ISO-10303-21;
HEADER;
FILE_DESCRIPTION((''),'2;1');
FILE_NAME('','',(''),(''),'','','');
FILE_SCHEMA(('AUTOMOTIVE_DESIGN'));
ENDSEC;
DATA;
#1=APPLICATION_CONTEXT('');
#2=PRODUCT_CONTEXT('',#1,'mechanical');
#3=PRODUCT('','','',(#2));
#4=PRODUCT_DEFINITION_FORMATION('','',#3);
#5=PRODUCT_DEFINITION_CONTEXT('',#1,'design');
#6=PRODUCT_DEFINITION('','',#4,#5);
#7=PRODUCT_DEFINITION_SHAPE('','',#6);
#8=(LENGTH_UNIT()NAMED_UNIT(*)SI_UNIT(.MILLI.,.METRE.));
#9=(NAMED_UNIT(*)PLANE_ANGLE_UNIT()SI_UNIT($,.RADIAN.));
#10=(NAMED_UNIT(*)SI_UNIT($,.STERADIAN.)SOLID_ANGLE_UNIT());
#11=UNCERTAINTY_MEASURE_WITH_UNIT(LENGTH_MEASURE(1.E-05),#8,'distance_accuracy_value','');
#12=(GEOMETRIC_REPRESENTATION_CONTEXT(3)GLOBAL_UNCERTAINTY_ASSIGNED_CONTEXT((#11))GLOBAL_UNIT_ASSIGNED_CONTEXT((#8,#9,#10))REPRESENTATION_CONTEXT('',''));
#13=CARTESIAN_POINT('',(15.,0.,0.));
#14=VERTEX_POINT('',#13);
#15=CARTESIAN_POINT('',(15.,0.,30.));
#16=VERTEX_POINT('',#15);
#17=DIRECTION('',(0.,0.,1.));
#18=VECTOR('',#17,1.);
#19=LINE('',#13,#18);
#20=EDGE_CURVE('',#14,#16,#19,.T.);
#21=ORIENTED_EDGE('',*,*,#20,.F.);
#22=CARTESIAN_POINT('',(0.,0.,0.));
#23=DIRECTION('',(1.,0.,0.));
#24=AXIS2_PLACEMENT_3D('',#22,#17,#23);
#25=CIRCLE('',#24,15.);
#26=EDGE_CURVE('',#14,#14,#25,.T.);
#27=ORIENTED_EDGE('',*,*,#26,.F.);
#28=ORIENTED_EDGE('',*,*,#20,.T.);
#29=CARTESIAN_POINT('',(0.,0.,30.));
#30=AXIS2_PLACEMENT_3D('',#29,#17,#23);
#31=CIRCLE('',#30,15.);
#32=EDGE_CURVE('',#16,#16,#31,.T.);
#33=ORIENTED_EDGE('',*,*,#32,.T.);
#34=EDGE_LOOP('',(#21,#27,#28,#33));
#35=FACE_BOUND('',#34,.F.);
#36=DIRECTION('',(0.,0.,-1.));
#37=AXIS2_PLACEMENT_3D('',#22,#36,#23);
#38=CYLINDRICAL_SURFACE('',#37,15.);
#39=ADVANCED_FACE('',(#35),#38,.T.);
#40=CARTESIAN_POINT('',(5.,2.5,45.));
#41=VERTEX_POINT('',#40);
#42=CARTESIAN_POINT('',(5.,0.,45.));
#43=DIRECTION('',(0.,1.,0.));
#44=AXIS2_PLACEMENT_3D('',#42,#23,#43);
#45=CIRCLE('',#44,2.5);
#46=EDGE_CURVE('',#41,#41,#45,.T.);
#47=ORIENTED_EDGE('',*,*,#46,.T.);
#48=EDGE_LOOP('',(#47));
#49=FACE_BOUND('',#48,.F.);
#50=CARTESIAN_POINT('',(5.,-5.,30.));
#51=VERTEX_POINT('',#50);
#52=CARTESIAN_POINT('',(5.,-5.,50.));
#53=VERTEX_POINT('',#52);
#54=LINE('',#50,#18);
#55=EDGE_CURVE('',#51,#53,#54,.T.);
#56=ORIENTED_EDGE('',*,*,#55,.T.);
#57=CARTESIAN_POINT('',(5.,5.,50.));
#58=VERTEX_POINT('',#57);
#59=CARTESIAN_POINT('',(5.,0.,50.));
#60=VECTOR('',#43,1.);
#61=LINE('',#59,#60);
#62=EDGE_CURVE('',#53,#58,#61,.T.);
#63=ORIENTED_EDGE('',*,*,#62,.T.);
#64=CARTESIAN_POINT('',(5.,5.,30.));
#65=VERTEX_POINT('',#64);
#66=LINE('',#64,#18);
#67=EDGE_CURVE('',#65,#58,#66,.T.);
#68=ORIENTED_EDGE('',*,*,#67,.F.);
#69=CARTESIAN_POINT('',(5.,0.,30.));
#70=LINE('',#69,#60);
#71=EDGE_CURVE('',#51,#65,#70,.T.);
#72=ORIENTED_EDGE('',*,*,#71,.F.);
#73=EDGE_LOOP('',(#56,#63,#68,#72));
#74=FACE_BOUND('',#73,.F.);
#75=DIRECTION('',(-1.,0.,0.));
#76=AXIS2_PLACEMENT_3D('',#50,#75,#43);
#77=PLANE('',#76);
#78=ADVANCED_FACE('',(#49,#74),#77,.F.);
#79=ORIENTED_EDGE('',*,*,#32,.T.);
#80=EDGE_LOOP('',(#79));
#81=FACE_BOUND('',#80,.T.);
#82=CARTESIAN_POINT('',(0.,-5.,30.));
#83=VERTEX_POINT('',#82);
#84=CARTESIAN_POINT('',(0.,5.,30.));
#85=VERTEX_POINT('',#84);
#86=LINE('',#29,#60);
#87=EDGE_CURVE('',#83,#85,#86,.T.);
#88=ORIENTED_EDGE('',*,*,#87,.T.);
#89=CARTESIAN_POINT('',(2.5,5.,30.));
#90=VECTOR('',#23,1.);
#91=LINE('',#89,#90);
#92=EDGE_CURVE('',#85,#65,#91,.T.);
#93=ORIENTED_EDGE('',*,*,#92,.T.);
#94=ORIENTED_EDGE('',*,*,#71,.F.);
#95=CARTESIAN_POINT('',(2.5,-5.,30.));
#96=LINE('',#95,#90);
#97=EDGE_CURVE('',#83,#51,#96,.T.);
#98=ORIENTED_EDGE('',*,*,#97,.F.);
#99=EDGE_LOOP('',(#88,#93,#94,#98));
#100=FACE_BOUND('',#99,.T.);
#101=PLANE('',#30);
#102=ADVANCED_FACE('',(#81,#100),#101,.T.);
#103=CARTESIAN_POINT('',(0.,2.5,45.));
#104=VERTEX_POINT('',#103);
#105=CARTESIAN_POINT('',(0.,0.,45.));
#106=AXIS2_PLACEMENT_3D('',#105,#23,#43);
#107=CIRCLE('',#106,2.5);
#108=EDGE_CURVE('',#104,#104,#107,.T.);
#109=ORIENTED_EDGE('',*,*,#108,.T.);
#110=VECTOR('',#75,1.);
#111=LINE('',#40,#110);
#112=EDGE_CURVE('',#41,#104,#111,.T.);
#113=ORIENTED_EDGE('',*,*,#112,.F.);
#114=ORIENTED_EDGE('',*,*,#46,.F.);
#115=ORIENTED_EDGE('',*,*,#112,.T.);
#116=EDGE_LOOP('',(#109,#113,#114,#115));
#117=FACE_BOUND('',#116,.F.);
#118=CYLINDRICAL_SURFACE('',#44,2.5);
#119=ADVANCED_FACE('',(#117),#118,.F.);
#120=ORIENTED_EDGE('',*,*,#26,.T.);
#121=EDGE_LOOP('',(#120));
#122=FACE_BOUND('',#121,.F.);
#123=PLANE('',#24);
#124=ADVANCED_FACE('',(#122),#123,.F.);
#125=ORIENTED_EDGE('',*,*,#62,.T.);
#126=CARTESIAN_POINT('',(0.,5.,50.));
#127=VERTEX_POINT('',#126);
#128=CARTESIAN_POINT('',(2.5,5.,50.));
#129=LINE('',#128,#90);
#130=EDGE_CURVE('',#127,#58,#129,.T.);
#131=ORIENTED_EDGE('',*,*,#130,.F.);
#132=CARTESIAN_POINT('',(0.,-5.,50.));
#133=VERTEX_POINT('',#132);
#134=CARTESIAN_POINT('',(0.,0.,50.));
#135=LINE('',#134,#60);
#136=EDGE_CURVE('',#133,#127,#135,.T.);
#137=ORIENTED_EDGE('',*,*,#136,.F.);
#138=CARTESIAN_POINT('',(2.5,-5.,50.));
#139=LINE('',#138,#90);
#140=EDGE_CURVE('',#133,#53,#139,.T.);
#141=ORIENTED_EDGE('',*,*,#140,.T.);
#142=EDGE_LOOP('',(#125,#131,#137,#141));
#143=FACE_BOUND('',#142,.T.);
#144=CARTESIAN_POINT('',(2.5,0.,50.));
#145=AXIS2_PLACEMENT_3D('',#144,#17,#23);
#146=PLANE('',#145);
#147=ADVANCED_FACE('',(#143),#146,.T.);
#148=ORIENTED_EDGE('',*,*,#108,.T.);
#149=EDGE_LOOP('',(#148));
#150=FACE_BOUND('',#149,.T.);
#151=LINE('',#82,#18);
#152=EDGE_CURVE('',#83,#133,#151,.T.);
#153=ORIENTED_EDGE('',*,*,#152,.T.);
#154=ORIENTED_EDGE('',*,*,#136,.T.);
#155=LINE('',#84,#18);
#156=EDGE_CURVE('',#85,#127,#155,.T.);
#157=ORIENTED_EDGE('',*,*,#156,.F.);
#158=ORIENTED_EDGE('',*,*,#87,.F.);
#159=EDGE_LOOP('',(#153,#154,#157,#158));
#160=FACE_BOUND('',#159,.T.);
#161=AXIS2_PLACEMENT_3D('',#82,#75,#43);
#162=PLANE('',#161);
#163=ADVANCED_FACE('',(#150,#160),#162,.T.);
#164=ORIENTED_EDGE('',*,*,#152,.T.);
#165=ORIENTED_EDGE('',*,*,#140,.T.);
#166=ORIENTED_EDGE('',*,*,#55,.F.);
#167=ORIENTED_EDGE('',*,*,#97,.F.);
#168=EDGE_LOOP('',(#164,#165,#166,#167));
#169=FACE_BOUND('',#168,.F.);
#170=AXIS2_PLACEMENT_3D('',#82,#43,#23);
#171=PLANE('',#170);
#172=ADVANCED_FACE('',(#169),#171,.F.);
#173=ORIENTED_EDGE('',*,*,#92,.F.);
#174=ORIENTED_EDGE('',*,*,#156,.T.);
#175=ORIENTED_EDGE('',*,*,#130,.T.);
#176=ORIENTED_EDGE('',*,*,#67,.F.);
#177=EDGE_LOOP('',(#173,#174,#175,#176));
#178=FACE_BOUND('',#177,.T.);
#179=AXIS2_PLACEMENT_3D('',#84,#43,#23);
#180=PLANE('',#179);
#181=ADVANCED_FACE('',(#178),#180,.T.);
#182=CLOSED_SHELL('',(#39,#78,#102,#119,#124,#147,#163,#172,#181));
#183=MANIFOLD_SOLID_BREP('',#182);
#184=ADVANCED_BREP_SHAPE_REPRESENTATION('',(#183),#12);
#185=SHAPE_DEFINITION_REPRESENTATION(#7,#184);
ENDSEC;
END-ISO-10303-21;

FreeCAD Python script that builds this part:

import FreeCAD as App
import Part
import Sketcher

V = App.Vector


def add_polygon(sketch, points):
    """Adds a closed chain of lines whose ends are joined by coincident constraints."""
    first, n = sketch.GeometryCount, len(points)
    for a, b in zip(points, points[1:] + points[:1]):
        sketch.addGeometry(Part.LineSegment(App.Vector(*a, 0), App.Vector(*b, 0)), False)
    for i in range(n):
        sketch.addConstraint(Sketcher.Constraint("Coincident", first + i, 2, first + (i + 1) % n, 1))

doc = App.newDocument("Part")
body = doc.addObject("PartDesign::Body", "Body")

sketch1 = doc.addObject("Sketcher::SketchObject", "Sketch")
body.addObject(sketch1)
sketch1.AttachmentSupport = (doc.XY_Plane, [""])
sketch1.MapMode = "FlatFace"
sketch1.addGeometry(Part.Circle(V(0, 0, 0), V(0, 0, 1), 15), False)
sketch1.addConstraint([
    Sketcher.Constraint("Coincident", 0, 3, -1, 1),
    Sketcher.Constraint("Diameter", 0, 30.0),
])
pad1 = doc.addObject("PartDesign::Pad", "Pad")
body.addObject(pad1)
pad1.Profile = sketch1
pad1.Length = 30

sketch2 = doc.addObject("Sketcher::SketchObject", "Sketch001")
body.addObject(sketch2)
sketch2.AttachmentSupport = (doc.XY_Plane, [""])
sketch2.MapMode = "FlatFace"
sketch2.AttachmentOffset = App.Placement(V(0, 0, 30), App.Rotation())
add_polygon(sketch2, [(0, 5), (0, -5), (5, -5), (5, 5)])
sketch2.addConstraint([
    Sketcher.Constraint("Vertical", 0),
    Sketcher.Constraint("Horizontal", 1),
    Sketcher.Constraint("Vertical", 2),
    Sketcher.Constraint("Horizontal", 3),
    Sketcher.Constraint("Symmetric", 0, 2, 3, 2, -1, 1),
    Sketcher.Constraint("DistanceX", 1, 1, 1, 2, 5.0),
    Sketcher.Constraint("DistanceY", 0, 2, 0, 1, 10.0),
])
pad2 = doc.addObject("PartDesign::Pad", "Pad001")
body.addObject(pad2)
pad2.Profile = sketch2
pad2.Length = 20

sketch3 = doc.addObject("Sketcher::SketchObject", "Sketch002")
body.addObject(sketch3)
sketch3.AttachmentSupport = (doc.YZ_Plane, [""])
sketch3.MapMode = "FlatFace"
sketch3.AttachmentOffset = App.Placement(V(0, 0, 5), App.Rotation())
sketch3.addGeometry(Part.Circle(V(0, 45, 0), V(0, 0, 1), 2.5), False)
sketch3.addConstraint([
    Sketcher.Constraint("PointOnObject", 0, 3, -2),
    Sketcher.Constraint("Diameter", 0, 5.0),
    Sketcher.Constraint("DistanceY", -1, 1, 0, 3, 45.0),
])
pocket1 = doc.addObject("PartDesign::Pocket", "Pocket")
body.addObject(pocket1)
pocket1.Profile = sketch3
pocket1.Type = "ThroughAll"

doc.recompute()
